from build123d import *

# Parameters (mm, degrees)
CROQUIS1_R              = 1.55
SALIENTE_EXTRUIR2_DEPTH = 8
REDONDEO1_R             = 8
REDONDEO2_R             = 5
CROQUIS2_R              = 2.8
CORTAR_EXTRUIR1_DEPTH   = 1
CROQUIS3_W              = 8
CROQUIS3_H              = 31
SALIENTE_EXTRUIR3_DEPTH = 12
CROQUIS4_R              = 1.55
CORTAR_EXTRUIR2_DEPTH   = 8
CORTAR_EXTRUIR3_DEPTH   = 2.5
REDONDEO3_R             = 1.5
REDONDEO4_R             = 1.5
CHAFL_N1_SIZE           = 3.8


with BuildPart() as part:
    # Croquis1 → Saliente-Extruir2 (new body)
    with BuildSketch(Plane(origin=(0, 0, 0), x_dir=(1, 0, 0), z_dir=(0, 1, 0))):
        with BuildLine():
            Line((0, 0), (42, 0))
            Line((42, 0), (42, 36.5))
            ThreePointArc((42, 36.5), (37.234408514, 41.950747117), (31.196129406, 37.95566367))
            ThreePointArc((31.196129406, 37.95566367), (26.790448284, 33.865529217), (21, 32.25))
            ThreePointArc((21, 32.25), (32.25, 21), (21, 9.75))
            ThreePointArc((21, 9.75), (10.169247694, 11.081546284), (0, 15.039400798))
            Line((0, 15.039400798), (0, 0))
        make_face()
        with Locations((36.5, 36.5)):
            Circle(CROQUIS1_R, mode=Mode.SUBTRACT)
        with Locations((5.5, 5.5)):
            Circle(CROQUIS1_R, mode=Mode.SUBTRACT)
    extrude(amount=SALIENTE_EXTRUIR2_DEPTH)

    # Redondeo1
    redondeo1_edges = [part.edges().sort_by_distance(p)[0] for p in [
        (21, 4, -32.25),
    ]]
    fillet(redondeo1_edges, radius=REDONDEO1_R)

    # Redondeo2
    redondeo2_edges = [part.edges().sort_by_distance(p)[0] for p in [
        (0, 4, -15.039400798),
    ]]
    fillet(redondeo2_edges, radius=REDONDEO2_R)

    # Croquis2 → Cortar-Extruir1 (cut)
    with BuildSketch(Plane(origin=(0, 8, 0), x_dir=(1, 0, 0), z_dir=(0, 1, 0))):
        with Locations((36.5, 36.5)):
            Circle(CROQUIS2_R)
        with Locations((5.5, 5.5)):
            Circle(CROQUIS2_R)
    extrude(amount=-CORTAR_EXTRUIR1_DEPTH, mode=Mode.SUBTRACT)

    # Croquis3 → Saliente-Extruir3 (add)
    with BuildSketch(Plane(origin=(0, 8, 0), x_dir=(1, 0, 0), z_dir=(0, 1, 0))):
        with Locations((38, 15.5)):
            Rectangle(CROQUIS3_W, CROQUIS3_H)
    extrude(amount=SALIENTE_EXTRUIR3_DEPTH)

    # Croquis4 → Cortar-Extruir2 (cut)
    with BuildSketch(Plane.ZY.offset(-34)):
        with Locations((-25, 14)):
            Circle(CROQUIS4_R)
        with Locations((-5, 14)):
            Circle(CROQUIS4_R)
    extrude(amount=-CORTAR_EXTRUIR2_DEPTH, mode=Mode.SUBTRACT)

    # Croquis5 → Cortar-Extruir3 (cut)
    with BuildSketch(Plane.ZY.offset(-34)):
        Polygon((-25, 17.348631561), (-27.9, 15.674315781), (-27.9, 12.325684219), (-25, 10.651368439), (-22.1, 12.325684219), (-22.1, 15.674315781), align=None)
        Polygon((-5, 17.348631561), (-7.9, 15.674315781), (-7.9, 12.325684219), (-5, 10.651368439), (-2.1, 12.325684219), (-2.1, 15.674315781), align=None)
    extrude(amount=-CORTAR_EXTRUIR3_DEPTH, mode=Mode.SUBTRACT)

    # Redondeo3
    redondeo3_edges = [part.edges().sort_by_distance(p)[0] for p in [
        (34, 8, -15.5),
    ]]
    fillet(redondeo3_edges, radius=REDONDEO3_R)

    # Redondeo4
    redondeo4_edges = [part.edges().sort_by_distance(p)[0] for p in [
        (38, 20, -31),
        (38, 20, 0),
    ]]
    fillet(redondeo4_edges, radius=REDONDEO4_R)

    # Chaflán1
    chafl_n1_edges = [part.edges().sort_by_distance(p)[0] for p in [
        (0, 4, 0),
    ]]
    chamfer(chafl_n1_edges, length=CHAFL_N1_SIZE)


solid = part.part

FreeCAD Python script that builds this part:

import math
import FreeCAD as App
import Part
import Sketcher

V = App.Vector
Q = App.Units.Quantity


def edges_at(feature, points):
    """Names of the edges that pass closest to the given points."""
    edges = feature.Shape.Edges
    near = lambda p: min(range(len(edges)), key=lambda i: edges[i].distToShape(Part.Vertex(*p))[0])
    return sorted({f"Edge{near(p) + 1}" for p in points})


def add_polygon(sketch, points):
    """Adds a closed chain of lines whose ends are joined by coincident constraints."""
    first, n = sketch.GeometryCount, len(points)
    for a, b in zip(points, points[1:] + points[:1]):
        sketch.addGeometry(Part.LineSegment(App.Vector(*a, 0), App.Vector(*b, 0)), False)
    for i in range(n):
        sketch.addConstraint(Sketcher.Constraint("Coincident", first + i, 2, first + (i + 1) % n, 1))

doc = App.newDocument("Part")
body = doc.addObject("PartDesign::Body", "Body")

# Sketch on XZ plane
sketch1 = doc.addObject("Sketcher::SketchObject", "Sketch")
body.addObject(sketch1)
sketch1.AttachmentSupport = (doc.XZ_Plane, [""])
sketch1.MapMode = "FlatFace"
sketch1.addGeometry(Part.LineSegment(V(0, 0, 0), V(42, 0, 0)), False)
sketch1.addGeometry(Part.LineSegment(V(42, 0, 0), V(42, -36.5, 0)), False)
sketch1.addGeometry(Part.ArcOfCircle(Part.Circle(V(36.5, -36.5, 0), V(0, 0, 1), 5.5), math.radians(-165), math.radians(0)), False)
sketch1.addGeometry(Part.ArcOfCircle(Part.Circle(V(20.6, -45, 0), V(0, 0, 1), 12.7), math.radians(33), math.radians(88)), False)
sketch1.addGeometry(Part.ArcOfCircle(Part.Circle(V(21, -21, 0), V(0, 0, 1), 11.2), math.radians(-90), math.radians(90)), False)
sketch1.addGeometry(Part.ArcOfCircle(Part.Circle(V(20.9, -53.7, 0), V(0, 0, 1), 44), math.radians(90), math.radians(118)), False)
sketch1.addGeometry(Part.LineSegment(V(0, -15, 0), V(0, 0, 0)), False)
sketch1.addGeometry(Part.Circle(V(5.5, -5.5, 0), V(0, 0, 1), 1.6), False)
sketch1.addGeometry(Part.Circle(V(36.5, -36.5, 0), V(0, 0, 1), 1.6), False)
sketch1.addConstraint(Sketcher.Constraint("Coincident", 0, 2, 1, 1))
sketch1.addConstraint(Sketcher.Constraint("Tangent", 1, 2, 2, 2))
sketch1.addConstraint(Sketcher.Constraint("Coincident", 2, 1, 3, 1))
sketch1.addConstraint(Sketcher.Constraint("Coincident", 3, 2, 4, 1))
sketch1.addConstraint(Sketcher.Constraint("Coincident", 4, 2, 5, 1))
sketch1.addConstraint(Sketcher.Constraint("Coincident", 5, 2, 6, 1))
sketch1.addConstraint(Sketcher.Constraint("Coincident", 6, 2, 0, 1))
sketch1.addConstraint(Sketcher.Constraint("Horizontal", 0))
sketch1.addConstraint(Sketcher.Constraint("Vertical", 1))
sketch1.addConstraint(Sketcher.Constraint("Vertical", 6))
sketch1.addConstraint(Sketcher.Constraint("Coincident", 6, 2, -1, 1))
sketch1.addConstraint(Sketcher.Constraint("Coincident", 8, 3, 2, 3))
sketch1.addConstraint(Sketcher.Constraint("Equal", 7, 8))
sketch1.addConstraint(Sketcher.Constraint("Vertical", 4, 3, 3, 2))
sketch1.addConstraint(Sketcher.Constraint("Vertical", 3, 2, 4, 2))
sketch1.addConstraint(Sketcher.Constraint("Diameter", 7, Q("3.1 mm")))
sketch1.addConstraint(Sketcher.Constraint("Radius", 2, Q("5.5 mm")))
sketch1.addConstraint(Sketcher.Constraint("DistanceX", 0, 1, 0, 2, Q("42 mm")))
sketch1.addConstraint(Sketcher.Constraint("Radius", 4, Q("11.25 mm")))
sketch1.addConstraint(Sketcher.Constraint("DistanceY", 1, 2, 1, 1, Q("36.5 mm")))
sketch1.addConstraint(Sketcher.Constraint("DistanceX", -1, 1, 4, 3, Q("21 mm")))
sketch1.addConstraint(Sketcher.Constraint("DistanceY", 4, 3, -1, 1, Q("21 mm")))
sketch1.addConstraint(Sketcher.Constraint("DistanceX", 7, 3, 2, 3, Q("31 mm")))
sketch1.addConstraint(Sketcher.Constraint("DistanceY", 2, 3, 7, 3, Q("31 mm")))
sketch1.addConstraint(Sketcher.Constraint("Radius", 5, Q("43.967298 mm")))
sketch1.addConstraint(Sketcher.Constraint("Radius", 3, Q("12.744331 mm")))
sketch1.addConstraint(Sketcher.Constraint("DistanceY", 6, 1, 6, 2, Q("15.039401 mm")))
sketch1.addConstraint(Sketcher.Constraint("DistanceX", -1, 1, 2, 1, Q("31.196129 mm")))
pad1 = doc.addObject("PartDesign::Pad", "Pad")
body.addObject(pad1)
pad1.Profile = sketch1
pad1.Length = 8
pad1.Reversed = True
doc.recompute()

fillet = doc.addObject("PartDesign::Fillet", "Fillet")
body.addObject(fillet)
fillet.Base = (pad1, edges_at(pad1, [(21, 4, -32.25)]))
fillet.Radius = 8
doc.recompute()

fillet2 = doc.addObject("PartDesign::Fillet", "Fillet001")
body.addObject(fillet2)
fillet2.Base = (fillet, edges_at(fillet, [(0, 4, -15.039)]))
fillet2.Radius = 5

# Sketch on XZ plane
sketch2 = doc.addObject("Sketcher::SketchObject", "Sketch001")
body.addObject(sketch2)
sketch2.AttachmentSupport = (doc.XZ_Plane, [""])
sketch2.MapMode = "FlatFace"
sketch2.AttachmentOffset = App.Placement(V(0, 0, -8), App.Rotation())
sketch2.addGeometry(Part.Circle(V(36.5, -36.5, 0), V(0, 0, 1), 2.8), False)
sketch2.addGeometry(Part.Circle(V(5.5, -5.5, 0), V(0, 0, 1), 2.8), False)
sketch2.addConstraint(Sketcher.Constraint("Equal", 0, 1))
sketch2.addConstraint(Sketcher.Constraint("Diameter", 0, Q("5.6 mm")))
sketch2.addConstraint(Sketcher.Constraint("DistanceX", 1, 3, 0, 3, Q("31 mm")))
sketch2.addConstraint(Sketcher.Constraint("DistanceY", 0, 3, 1, 3, Q("31 mm")))
sketch2.addConstraint(Sketcher.Constraint("DistanceX", -1, 1, 0, 3, Q("36.5 mm")))
sketch2.addConstraint(Sketcher.Constraint("DistanceY", 0, 3, -1, 1, Q("36.5 mm")))
pocket1 = doc.addObject("PartDesign::Pocket", "Pocket")
body.addObject(pocket1)
pocket1.Profile = sketch2
pocket1.Length = 1
pocket1.Reversed = True

# Sketch on XZ plane
sketch3 = doc.addObject("Sketcher::SketchObject", "Sketch002")
body.addObject(sketch3)
sketch3.AttachmentSupport = (doc.XZ_Plane, [""])
sketch3.MapMode = "FlatFace"
sketch3.AttachmentOffset = App.Placement(V(0, 0, -8), App.Rotation())
add_polygon(sketch3, [(34, -31), (34, 0), (42, 0), (42, -31)])  # lines 0-3
sketch3.addConstraint(Sketcher.Constraint("Vertical", 0))
sketch3.addConstraint(Sketcher.Constraint("Horizontal", 1))
sketch3.addConstraint(Sketcher.Constraint("Vertical", 2))
sketch3.addConstraint(Sketcher.Constraint("Horizontal", 3))
sketch3.addConstraint(Sketcher.Constraint("PointOnObject", 0, 2, -1))
sketch3.addConstraint(Sketcher.Constraint("DistanceX", 1, 1, 1, 2, Q("8 mm")))
sketch3.addConstraint(Sketcher.Constraint("DistanceY", 0, 1, 0, 2, Q("31 mm")))
sketch3.addConstraint(Sketcher.Constraint("DistanceX", -1, 1, 0, 2, Q("34 mm")))
pad2 = doc.addObject("PartDesign::Pad", "Pad001")
body.addObject(pad2)
pad2.Profile = sketch3
pad2.Length = 12
pad2.Reversed = True

# Sketch on YZ plane
sketch4 = doc.addObject("Sketcher::SketchObject", "Sketch003")
body.addObject(sketch4)
sketch4.AttachmentSupport = (doc.YZ_Plane, [""])
sketch4.MapMode = "FlatFace"
sketch4.AttachmentOffset = App.Placement(V(0, 0, 34), App.Rotation())
sketch4.addGeometry(Part.Circle(V(14, -25, 0), V(0, 0, 1), 1.6), False)
sketch4.addGeometry(Part.Circle(V(14, -5, 0), V(0, 0, 1), 1.6), False)
sketch4.addConstraint(Sketcher.Constraint("Equal", 0, 1))
sketch4.addConstraint(Sketcher.Constraint("Vertical", 0, 3, 1, 3))
sketch4.addConstraint(Sketcher.Constraint("Diameter", 0, Q("3.1 mm")))
sketch4.addConstraint(Sketcher.Constraint("DistanceX", -1, 1, 0, 3, Q("14 mm")))
sketch4.addConstraint(Sketcher.Constraint("DistanceY", 0, 3, -1, 1, Q("25 mm")))
sketch4.addConstraint(Sketcher.Constraint("DistanceY", 1, 3, -1, 1, Q("5 mm")))
pocket2 = doc.addObject("PartDesign::Pocket", "Pocket001")
body.addObject(pocket2)
pocket2.Profile = sketch4
pocket2.Length = 8
pocket2.Reversed = True

# Sketch on YZ plane
sketch5 = doc.addObject("Sketcher::SketchObject", "Sketch004")
body.addObject(sketch5)
sketch5.AttachmentSupport = (doc.YZ_Plane, [""])
sketch5.MapMode = "FlatFace"
sketch5.AttachmentOffset = App.Placement(V(0, 0, 34), App.Rotation())
add_polygon(sketch5, [(17.3, -25), (15.7, -27.9), (12.3, -27.9), (10.7, -25), (12.3, -22.1), (15.7, -22.1)])  # lines 0-5
add_polygon(sketch5, [(17.3, -5), (15.7, -7.9), (12.3, -7.9), (10.7, -5), (12.3, -2.1), (15.7, -2.1)])  # lines 6-11
sketch5.addConstraint(Sketcher.Constraint("Horizontal", 1))
sketch5.addConstraint(Sketcher.Constraint("Horizontal", 4))
sketch5.addConstraint(Sketcher.Constraint("Horizontal", 7))
sketch5.addConstraint(Sketcher.Constraint("Horizontal", 10))
sketch5.addConstraint(Sketcher.Constraint("Parallel", 0, 3))
sketch5.addConstraint(Sketcher.Constraint("Parallel", 2, 5))
sketch5.addConstraint(Sketcher.Constraint("Parallel", 3, 6))
sketch5.addConstraint(Sketcher.Constraint("Parallel", 5, 8))
sketch5.addConstraint(Sketcher.Constraint("Parallel", 6, 9))
sketch5.addConstraint(Sketcher.Constraint("Parallel", 8, 11))
sketch5.addConstraint(Sketcher.Constraint("Horizontal", 2, 2, 5, 2))
sketch5.addConstraint(Sketcher.Constraint("Horizontal", 8, 2, 11, 2))
sketch5.addConstraint(Sketcher.Constraint("Vertical", 1, 2, 3, 2))
sketch5.addConstraint(Sketcher.Constraint("Vertical", 0, 2, 4, 2))
sketch5.addConstraint(Sketcher.Constraint("Vertical", 4, 2, 6, 2))
sketch5.addConstraint(Sketcher.Constraint("Vertical", 3, 2, 7, 2))
sketch5.addConstraint(Sketcher.Constraint("Vertical", 2, 2, 8, 2))
sketch5.addConstraint(Sketcher.Constraint("Vertical", 7, 2, 9, 2))
sketch5.addConstraint(Sketcher.Constraint("Angle", 0, Q("-120 deg")))
sketch5.addConstraint(Sketcher.Constraint("DistanceY", 2, 2, -1, 1, Q("25 mm")))
sketch5.addConstraint(Sketcher.Constraint("DistanceY", 8, 2, -1, 1, Q("5 mm")))
sketch5.addConstraint(Sketcher.Constraint("DistanceY", 0, 2, -1, 1, Q("27.9 mm")))
sketch5.addConstraint(Sketcher.Constraint("DistanceX", 1, 2, 1, 1, Q("3.348632 mm")))
sketch5.addConstraint(Sketcher.Constraint("DistanceX", -1, 1, 2, 2, Q("10.651368 mm")))
pocket3 = doc.addObject("PartDesign::Pocket", "Pocket002")
body.addObject(pocket3)
pocket3.Profile = sketch5
pocket3.Length = 2.5
pocket3.Reversed = True
doc.recompute()

fillet3 = doc.addObject("PartDesign::Fillet", "Fillet002")
body.addObject(fillet3)
fillet3.Base = (pocket3, edges_at(pocket3, [(34, 8, -15.5)]))
fillet3.Radius = 1.5
doc.recompute()

fillet4 = doc.addObject("PartDesign::Fillet", "Fillet003")
body.addObject(fillet4)
fillet4.Base = (fillet3, edges_at(fillet3, [(38, 20, -31), (38, 20, 0)]))
fillet4.Radius = 1.5
doc.recompute()

chamfer = doc.addObject("PartDesign::Chamfer", "Chamfer")
body.addObject(chamfer)
chamfer.Base = (fillet4, edges_at(fillet4, [(0, 4, 0)]))
chamfer.Size = 3.8

doc.recompute()
